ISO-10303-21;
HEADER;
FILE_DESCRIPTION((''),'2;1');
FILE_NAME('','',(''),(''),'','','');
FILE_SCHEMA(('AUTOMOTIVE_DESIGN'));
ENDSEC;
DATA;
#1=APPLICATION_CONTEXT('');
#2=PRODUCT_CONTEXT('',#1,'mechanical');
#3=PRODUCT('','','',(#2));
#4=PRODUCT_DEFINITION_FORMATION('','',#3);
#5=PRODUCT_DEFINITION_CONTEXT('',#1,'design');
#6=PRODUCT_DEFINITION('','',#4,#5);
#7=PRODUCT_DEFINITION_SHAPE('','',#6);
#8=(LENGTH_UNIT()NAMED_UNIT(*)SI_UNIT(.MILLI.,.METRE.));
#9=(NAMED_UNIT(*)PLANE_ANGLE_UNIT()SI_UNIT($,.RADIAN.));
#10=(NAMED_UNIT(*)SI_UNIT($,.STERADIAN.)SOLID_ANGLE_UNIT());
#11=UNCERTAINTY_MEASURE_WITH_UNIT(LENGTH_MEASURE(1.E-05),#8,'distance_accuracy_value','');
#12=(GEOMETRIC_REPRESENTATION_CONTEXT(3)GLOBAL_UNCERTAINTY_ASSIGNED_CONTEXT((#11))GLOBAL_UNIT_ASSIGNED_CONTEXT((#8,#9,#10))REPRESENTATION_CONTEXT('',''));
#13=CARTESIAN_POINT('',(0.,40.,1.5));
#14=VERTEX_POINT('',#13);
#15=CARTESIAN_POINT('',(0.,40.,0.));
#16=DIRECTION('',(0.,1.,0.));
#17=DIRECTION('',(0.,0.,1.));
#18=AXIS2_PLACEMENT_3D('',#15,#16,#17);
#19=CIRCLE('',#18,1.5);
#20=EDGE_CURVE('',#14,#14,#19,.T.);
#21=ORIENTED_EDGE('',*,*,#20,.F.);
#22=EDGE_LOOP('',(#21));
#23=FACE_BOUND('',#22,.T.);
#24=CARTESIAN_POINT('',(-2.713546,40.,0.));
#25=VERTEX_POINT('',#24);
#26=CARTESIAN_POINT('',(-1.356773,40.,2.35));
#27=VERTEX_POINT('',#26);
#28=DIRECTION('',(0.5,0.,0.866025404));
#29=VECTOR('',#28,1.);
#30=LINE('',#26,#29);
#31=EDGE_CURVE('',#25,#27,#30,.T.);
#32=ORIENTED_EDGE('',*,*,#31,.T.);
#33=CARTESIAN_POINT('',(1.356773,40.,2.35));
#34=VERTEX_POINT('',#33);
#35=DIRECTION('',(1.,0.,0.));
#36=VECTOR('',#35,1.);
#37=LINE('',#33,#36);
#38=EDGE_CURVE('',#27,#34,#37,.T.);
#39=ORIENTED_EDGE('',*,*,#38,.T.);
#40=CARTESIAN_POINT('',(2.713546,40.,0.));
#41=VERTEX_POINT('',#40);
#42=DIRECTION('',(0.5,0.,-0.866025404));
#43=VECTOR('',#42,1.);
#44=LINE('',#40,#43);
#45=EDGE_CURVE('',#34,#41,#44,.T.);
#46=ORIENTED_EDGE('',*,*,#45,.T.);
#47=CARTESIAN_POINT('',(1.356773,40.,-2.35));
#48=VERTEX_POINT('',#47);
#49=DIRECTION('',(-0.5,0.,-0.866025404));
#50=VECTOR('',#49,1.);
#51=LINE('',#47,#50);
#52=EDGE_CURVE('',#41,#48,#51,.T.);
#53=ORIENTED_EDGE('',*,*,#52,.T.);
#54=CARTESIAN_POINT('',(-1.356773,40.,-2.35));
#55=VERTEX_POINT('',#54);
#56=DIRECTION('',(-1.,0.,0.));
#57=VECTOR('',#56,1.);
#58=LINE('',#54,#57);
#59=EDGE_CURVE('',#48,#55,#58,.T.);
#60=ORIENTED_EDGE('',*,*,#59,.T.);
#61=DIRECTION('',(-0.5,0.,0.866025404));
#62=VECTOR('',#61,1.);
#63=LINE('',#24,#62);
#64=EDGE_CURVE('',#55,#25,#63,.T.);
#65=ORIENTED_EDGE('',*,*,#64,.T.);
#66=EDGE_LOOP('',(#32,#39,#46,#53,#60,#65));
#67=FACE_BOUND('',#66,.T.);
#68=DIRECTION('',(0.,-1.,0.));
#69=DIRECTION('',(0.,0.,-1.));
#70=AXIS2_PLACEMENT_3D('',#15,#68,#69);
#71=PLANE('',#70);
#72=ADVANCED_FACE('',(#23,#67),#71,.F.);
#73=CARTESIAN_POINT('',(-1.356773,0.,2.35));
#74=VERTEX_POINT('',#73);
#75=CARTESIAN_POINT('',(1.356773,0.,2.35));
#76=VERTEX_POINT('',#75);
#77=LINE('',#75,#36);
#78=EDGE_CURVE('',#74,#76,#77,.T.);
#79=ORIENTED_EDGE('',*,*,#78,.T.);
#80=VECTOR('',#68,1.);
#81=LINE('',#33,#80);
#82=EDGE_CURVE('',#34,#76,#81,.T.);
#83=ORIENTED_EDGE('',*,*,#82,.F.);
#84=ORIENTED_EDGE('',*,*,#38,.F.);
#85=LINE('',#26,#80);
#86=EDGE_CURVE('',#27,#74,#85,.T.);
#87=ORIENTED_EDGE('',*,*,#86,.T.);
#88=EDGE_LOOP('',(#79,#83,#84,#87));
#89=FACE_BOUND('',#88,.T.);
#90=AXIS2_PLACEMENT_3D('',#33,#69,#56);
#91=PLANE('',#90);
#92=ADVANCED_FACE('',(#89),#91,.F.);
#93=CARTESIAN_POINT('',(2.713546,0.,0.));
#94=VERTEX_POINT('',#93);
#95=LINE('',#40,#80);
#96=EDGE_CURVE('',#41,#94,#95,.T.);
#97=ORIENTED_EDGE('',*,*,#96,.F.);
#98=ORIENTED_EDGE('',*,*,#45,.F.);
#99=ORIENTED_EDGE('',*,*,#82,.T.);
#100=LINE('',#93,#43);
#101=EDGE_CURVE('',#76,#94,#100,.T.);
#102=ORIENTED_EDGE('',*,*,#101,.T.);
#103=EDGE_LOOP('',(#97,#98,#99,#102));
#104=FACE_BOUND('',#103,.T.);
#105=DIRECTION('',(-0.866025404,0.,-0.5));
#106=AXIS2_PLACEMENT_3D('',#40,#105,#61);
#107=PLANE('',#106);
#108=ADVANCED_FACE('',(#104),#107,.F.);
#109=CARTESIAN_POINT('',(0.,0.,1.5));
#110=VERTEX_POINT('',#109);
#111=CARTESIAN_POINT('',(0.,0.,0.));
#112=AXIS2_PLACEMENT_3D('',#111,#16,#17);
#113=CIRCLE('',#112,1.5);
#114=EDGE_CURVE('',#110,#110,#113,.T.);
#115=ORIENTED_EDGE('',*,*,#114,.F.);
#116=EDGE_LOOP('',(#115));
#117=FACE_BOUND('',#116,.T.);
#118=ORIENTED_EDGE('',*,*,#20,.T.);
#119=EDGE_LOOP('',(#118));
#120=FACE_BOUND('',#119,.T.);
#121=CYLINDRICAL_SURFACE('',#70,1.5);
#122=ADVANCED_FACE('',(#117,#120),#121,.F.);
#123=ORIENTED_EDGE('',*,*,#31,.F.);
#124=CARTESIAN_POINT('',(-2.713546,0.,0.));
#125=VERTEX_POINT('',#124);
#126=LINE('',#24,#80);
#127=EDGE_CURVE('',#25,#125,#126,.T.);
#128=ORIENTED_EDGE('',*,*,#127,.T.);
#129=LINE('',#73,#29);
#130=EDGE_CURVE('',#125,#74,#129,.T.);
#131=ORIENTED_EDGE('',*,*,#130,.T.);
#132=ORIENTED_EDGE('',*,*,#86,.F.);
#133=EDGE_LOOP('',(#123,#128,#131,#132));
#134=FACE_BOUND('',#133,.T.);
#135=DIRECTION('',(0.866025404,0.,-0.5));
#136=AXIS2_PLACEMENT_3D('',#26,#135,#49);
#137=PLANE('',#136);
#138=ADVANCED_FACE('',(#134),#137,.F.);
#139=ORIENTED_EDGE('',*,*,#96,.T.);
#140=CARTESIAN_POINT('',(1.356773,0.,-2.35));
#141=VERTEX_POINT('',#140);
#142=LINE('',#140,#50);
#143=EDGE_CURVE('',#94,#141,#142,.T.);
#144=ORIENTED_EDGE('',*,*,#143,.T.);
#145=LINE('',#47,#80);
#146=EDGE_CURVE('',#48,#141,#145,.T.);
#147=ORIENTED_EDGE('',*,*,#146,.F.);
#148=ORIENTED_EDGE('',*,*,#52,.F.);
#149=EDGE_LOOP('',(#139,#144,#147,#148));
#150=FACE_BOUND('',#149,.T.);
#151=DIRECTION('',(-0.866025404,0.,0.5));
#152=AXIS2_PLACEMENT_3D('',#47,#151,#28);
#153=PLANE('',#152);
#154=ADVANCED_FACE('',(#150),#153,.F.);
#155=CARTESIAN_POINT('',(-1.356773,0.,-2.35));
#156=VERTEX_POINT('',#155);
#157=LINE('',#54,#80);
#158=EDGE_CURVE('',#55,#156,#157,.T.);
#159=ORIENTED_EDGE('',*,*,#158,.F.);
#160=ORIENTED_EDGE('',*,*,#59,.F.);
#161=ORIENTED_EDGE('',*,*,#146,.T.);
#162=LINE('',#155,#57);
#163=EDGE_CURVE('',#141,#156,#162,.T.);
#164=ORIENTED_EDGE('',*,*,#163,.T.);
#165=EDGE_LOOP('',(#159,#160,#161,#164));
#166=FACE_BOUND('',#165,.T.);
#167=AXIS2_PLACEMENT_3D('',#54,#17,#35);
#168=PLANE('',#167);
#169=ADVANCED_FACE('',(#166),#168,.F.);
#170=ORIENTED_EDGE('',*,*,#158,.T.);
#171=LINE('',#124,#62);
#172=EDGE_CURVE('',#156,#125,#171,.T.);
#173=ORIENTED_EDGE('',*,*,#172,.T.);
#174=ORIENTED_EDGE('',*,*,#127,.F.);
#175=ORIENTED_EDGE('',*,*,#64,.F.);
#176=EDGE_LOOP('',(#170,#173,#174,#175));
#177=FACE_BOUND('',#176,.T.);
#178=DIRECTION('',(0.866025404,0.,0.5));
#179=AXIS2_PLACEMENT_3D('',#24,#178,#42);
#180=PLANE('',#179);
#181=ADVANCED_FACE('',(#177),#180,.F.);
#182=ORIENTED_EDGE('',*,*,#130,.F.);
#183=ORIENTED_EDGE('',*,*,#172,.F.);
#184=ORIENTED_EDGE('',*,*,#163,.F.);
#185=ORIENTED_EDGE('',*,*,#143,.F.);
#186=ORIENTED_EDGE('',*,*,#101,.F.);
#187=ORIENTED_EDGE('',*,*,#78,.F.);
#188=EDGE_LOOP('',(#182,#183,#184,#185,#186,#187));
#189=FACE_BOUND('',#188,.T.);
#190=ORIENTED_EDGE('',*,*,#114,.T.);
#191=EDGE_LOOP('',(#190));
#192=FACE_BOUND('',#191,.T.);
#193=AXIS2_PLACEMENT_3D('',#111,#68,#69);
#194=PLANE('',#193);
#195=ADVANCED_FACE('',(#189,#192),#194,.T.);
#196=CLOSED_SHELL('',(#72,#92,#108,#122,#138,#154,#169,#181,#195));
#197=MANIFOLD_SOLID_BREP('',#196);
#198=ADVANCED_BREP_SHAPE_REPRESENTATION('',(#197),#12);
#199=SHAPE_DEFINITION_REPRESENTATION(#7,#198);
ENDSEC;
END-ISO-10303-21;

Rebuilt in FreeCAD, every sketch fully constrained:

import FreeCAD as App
import Part
import Sketcher

V = App.Vector
Q = App.Units.Quantity


def add_polygon(sketch, points):
    """Adds a closed chain of lines whose ends are joined by coincident constraints."""
    first, n = sketch.GeometryCount, len(points)
    for a, b in zip(points, points[1:] + points[:1]):
        sketch.addGeometry(Part.LineSegment(App.Vector(*a, 0), App.Vector(*b, 0)), False)
    for i in range(n):
        sketch.addConstraint(Sketcher.Constraint("Coincident", first + i, 2, first + (i + 1) % n, 1))

doc = App.newDocument("Part")
body = doc.addObject("PartDesign::Body", "Body")

# Sketch on XZ plane
sketch1 = body.newObject("Sketcher::SketchObject", "Sketch")
sketch1.AttachmentSupport = (doc.getObject("XZ_Plane"), [""])
sketch1.MapMode = "FlatFace"
add_polygon(sketch1, [(1.4, -2.4), (-1.4, -2.4), (-2.7, 0), (-1.4, 2.4), (1.4, 2.4), (2.7, 0)])  # lines 0-5
sketch1.addGeometry(Part.Circle(V(0, 0, 0), V(0, 0, 1), 1.5), False)  # 6
sketch1.addConstraint([
    Sketcher.Constraint("Horizontal", 0),
    Sketcher.Constraint("Horizontal", 3),
    Sketcher.Constraint("Coincident", 6, 3, -1, 1),
    Sketcher.Constraint("Symmetric", 0, 2, 3, 2, -1, 1),
    Sketcher.Constraint("Symmetric", 1, 2, 4, 2, -1, 1),
    Sketcher.Constraint("PointOnObject", 1, 2, -1),
    Sketcher.Constraint("Parallel", 2, 5),
    Sketcher.Constraint("Vertical", 0, 2, 2, 2),
    Sketcher.Constraint("Diameter", 6, 3.0),
    Sketcher.Constraint("Angle", 1, Q("120 deg")),
    Sketcher.Constraint("DistanceY", 0, 2, 2, 2, 4.7),
    Sketcher.Constraint("DistanceX", 0, 2, 0, 1, 2.713546),
])
pad1 = body.newObject("PartDesign::Pad", "Pad")
pad1.Profile = sketch1
pad1.Length = 40
pad1.Reversed = True

doc.recompute()
